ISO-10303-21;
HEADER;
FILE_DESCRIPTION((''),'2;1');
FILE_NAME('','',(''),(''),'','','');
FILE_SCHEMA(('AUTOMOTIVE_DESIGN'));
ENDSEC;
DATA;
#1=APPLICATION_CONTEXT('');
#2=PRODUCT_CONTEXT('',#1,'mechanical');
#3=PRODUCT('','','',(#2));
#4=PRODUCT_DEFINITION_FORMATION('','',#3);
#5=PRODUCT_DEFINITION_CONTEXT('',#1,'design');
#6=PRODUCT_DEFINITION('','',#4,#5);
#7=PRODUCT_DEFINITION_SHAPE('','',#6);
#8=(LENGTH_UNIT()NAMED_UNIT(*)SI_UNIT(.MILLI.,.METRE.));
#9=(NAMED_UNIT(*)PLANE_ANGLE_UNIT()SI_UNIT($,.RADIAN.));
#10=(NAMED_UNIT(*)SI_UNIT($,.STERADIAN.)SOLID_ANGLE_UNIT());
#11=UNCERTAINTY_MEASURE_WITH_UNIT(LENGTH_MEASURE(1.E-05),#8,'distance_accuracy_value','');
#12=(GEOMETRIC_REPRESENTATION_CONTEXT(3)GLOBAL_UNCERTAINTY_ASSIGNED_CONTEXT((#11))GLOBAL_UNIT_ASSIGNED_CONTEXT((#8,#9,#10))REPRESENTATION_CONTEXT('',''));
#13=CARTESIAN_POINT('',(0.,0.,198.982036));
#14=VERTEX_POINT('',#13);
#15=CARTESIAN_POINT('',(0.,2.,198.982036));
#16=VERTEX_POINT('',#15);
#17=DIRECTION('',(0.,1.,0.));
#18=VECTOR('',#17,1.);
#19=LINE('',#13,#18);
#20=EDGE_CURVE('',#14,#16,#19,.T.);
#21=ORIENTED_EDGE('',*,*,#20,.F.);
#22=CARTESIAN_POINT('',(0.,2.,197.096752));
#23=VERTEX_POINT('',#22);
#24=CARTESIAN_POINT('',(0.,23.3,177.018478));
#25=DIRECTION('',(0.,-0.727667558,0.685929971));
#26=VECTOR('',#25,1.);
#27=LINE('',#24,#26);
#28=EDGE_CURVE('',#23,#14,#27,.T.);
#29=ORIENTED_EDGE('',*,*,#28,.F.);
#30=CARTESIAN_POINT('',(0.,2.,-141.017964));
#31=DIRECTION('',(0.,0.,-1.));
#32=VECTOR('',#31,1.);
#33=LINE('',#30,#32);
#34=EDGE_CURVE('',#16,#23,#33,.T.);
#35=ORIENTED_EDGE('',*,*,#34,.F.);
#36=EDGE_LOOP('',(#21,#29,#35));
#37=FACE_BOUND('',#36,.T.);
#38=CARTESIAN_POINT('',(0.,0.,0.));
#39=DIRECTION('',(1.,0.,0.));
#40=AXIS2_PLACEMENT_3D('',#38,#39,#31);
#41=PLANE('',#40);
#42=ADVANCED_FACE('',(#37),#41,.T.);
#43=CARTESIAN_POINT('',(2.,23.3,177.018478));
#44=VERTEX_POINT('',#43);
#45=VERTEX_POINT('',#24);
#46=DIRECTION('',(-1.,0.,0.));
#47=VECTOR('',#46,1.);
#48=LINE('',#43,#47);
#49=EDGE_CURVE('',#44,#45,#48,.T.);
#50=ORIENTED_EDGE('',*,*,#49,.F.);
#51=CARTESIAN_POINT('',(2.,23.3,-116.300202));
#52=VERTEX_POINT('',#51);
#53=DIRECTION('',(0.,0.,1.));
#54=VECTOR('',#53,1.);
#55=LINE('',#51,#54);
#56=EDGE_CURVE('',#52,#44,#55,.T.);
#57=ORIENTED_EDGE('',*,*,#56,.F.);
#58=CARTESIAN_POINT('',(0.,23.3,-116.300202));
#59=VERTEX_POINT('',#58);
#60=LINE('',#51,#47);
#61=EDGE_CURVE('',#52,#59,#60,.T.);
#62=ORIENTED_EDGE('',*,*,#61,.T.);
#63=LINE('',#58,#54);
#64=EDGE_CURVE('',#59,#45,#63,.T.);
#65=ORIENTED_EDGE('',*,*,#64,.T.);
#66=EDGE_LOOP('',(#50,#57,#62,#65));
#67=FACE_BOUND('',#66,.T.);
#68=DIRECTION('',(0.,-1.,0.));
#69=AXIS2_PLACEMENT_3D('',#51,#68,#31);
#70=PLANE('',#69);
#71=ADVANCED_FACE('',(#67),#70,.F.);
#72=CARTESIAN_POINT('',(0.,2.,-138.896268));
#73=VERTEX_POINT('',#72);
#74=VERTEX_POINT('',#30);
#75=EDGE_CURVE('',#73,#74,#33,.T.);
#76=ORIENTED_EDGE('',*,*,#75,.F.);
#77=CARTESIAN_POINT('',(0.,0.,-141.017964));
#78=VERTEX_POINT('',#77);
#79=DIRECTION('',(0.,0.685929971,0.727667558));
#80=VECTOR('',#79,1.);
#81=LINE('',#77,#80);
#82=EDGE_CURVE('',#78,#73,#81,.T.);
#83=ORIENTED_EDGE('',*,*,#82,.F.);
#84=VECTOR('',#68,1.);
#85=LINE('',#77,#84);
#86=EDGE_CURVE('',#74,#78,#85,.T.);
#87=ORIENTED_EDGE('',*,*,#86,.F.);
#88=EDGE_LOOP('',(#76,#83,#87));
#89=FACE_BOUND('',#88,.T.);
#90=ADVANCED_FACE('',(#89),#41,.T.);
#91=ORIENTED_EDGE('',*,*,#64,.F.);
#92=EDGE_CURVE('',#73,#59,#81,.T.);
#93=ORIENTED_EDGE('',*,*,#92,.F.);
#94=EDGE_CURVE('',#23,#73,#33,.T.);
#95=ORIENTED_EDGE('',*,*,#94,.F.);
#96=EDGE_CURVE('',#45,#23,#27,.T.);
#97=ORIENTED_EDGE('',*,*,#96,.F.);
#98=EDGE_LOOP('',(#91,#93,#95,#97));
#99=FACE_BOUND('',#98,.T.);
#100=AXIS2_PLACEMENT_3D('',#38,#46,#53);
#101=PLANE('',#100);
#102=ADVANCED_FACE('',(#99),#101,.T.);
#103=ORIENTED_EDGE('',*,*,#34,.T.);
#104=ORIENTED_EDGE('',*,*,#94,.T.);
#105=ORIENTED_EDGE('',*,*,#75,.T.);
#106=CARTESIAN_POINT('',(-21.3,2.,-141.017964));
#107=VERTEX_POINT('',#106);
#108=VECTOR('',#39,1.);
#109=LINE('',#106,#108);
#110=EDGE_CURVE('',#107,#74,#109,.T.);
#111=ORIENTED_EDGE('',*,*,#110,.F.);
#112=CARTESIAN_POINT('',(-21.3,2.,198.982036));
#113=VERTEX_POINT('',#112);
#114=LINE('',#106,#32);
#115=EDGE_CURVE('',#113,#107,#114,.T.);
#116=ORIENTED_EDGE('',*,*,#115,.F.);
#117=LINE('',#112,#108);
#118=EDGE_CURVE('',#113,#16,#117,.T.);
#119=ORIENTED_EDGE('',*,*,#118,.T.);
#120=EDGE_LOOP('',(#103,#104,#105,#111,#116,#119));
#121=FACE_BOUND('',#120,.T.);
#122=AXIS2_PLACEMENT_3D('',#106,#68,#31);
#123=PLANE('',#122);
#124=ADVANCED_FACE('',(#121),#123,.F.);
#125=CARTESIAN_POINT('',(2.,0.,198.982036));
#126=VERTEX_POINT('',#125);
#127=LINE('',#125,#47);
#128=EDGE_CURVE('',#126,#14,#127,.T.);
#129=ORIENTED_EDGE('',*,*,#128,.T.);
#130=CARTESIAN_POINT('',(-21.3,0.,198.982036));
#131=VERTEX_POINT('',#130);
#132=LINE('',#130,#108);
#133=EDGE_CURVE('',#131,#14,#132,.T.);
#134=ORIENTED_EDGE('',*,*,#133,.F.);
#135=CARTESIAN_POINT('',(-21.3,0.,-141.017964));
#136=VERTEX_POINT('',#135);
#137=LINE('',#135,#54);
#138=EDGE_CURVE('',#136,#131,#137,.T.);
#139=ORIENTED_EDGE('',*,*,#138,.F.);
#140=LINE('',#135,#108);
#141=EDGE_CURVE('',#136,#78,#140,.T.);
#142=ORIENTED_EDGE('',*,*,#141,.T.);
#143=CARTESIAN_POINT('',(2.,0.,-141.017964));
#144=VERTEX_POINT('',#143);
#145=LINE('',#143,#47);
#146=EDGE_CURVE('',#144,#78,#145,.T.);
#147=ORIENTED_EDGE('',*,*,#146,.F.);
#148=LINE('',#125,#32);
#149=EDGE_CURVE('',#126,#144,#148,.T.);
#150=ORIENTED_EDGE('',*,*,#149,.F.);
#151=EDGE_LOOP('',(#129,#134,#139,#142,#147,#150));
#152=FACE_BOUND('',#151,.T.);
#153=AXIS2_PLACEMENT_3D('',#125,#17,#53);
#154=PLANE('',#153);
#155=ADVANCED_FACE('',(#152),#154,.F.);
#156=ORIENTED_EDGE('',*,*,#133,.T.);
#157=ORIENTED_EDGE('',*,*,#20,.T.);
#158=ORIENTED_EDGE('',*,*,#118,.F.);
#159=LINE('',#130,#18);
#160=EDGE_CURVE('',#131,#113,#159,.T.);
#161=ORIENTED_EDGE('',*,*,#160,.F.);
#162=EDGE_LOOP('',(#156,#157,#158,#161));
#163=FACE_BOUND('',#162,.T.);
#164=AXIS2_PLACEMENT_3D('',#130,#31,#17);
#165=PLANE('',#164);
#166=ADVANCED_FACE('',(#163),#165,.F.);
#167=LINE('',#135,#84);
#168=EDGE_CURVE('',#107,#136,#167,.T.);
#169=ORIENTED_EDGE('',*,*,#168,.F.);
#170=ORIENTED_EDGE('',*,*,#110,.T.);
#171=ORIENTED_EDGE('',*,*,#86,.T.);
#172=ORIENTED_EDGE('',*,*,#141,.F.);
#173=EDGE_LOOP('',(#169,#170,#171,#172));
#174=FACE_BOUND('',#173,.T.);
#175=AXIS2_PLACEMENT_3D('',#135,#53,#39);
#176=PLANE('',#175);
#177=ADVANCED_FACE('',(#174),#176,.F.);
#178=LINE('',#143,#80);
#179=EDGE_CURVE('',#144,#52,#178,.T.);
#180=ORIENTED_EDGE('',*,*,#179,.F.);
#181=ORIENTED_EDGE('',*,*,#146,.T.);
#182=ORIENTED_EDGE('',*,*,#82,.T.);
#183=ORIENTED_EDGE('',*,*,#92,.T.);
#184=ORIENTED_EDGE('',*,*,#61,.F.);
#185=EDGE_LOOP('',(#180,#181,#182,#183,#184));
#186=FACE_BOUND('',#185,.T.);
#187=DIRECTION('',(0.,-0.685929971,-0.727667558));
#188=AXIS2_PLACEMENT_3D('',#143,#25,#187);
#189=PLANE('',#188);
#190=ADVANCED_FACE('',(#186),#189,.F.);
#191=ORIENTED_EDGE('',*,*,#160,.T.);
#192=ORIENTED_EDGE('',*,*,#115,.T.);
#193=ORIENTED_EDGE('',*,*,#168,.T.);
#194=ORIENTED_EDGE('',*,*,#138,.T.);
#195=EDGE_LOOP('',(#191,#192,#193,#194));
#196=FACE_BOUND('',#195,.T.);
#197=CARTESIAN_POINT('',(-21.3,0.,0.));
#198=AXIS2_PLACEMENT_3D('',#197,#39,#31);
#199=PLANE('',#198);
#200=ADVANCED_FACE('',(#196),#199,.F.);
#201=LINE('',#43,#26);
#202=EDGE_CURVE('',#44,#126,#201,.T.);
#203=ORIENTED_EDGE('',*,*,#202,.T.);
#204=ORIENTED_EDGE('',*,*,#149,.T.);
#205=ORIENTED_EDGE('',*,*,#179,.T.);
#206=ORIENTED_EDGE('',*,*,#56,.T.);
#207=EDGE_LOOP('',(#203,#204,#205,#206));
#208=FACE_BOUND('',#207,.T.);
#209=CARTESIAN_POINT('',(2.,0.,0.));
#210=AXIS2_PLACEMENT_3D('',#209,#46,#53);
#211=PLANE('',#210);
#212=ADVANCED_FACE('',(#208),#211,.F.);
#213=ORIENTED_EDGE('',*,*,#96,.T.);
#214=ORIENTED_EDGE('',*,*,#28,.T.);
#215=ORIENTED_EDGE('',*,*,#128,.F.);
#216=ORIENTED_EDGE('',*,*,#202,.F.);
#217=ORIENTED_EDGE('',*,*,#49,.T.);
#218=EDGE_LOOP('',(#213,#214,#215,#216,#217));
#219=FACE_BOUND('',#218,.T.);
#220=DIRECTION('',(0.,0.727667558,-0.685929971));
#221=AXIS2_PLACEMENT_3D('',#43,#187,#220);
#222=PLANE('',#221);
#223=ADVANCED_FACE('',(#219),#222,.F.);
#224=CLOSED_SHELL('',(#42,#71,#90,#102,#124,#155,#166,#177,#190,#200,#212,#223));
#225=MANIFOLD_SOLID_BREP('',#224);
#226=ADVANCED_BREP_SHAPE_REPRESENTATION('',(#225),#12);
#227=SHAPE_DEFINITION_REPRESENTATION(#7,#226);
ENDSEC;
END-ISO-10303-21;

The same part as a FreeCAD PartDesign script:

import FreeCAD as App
import Part
import Sketcher

V = App.Vector


def add_polygon(sketch, points):
    """Adds a closed chain of lines whose ends are joined by coincident constraints."""
    first, n = sketch.GeometryCount, len(points)
    for a, b in zip(points, points[1:] + points[:1]):
        sketch.addGeometry(Part.LineSegment(App.Vector(*a, 0), App.Vector(*b, 0)), False)
    for i in range(n):
        sketch.addConstraint(Sketcher.Constraint("Coincident", first + i, 2, first + (i + 1) % n, 1))

doc = App.newDocument("Part")
body = doc.addObject("PartDesign::Body", "Body")

# Sketch on YZ plane
sketch1 = doc.addObject("Sketcher::SketchObject", "Sketch")
body.addObject(sketch1)
sketch1.AttachmentSupport = (doc.YZ_Plane, [""])
sketch1.MapMode = "FlatFace"
add_polygon(sketch1, [(0, 199), (0, -141), (23, -116), (23, 177)])  # lines 0-3
sketch1.addConstraint(Sketcher.Constraint("Vertical", 0))
sketch1.addConstraint(Sketcher.Constraint("Vertical", 2))
sketch1.addConstraint(Sketcher.Constraint("PointOnObject", 0, 2, -2))
sketch1.addConstraint(Sketcher.Constraint("Perpendicular", 1, 3))
sketch1.addConstraint(Sketcher.Constraint("DistanceY", 0, 2, 0, 1, 340.0))
sketch1.addConstraint(Sketcher.Constraint("DistanceX", -1, 1, 1, 2, 23.3))
sketch1.addConstraint(Sketcher.Constraint("DistanceY", 2, 1, 2, 2, 293.31868))
sketch1.addConstraint(Sketcher.Constraint("DistanceY", 1, 2, -1, 1, 116.300202))
pad1 = doc.addObject("PartDesign::Pad", "Pad")
body.addObject(pad1)
pad1.Profile = sketch1
pad1.Length = 2

# Sketch on YZ plane
sketch2 = doc.addObject("Sketcher::SketchObject", "Sketch001")
body.addObject(sketch2)
sketch2.AttachmentSupport = (doc.YZ_Plane, [""])
sketch2.MapMode = "FlatFace"
add_polygon(sketch2, [(2, -141), (0, -141), (0, 199), (2, 199)])  # lines 0-3
sketch2.addConstraint(Sketcher.Constraint("Horizontal", 0))
sketch2.addConstraint(Sketcher.Constraint("Vertical", 1))
sketch2.addConstraint(Sketcher.Constraint("Horizontal", 2))
sketch2.addConstraint(Sketcher.Constraint("Vertical", 3))
sketch2.addConstraint(Sketcher.Constraint("PointOnObject", 0, 2, -2))
sketch2.addConstraint(Sketcher.Constraint("DistanceX", 0, 2, 0, 1, 2.0))
sketch2.addConstraint(Sketcher.Constraint("DistanceY", 1, 1, 1, 2, 340.0))
sketch2.addConstraint(Sketcher.Constraint("DistanceY", 0, 2, -1, 1, 141.017964))
pad2 = doc.addObject("PartDesign::Pad", "Pad001")
body.addObject(pad2)
pad2.Profile = sketch2
pad2.Length = 21.3
pad2.Reversed = True

doc.recompute()
